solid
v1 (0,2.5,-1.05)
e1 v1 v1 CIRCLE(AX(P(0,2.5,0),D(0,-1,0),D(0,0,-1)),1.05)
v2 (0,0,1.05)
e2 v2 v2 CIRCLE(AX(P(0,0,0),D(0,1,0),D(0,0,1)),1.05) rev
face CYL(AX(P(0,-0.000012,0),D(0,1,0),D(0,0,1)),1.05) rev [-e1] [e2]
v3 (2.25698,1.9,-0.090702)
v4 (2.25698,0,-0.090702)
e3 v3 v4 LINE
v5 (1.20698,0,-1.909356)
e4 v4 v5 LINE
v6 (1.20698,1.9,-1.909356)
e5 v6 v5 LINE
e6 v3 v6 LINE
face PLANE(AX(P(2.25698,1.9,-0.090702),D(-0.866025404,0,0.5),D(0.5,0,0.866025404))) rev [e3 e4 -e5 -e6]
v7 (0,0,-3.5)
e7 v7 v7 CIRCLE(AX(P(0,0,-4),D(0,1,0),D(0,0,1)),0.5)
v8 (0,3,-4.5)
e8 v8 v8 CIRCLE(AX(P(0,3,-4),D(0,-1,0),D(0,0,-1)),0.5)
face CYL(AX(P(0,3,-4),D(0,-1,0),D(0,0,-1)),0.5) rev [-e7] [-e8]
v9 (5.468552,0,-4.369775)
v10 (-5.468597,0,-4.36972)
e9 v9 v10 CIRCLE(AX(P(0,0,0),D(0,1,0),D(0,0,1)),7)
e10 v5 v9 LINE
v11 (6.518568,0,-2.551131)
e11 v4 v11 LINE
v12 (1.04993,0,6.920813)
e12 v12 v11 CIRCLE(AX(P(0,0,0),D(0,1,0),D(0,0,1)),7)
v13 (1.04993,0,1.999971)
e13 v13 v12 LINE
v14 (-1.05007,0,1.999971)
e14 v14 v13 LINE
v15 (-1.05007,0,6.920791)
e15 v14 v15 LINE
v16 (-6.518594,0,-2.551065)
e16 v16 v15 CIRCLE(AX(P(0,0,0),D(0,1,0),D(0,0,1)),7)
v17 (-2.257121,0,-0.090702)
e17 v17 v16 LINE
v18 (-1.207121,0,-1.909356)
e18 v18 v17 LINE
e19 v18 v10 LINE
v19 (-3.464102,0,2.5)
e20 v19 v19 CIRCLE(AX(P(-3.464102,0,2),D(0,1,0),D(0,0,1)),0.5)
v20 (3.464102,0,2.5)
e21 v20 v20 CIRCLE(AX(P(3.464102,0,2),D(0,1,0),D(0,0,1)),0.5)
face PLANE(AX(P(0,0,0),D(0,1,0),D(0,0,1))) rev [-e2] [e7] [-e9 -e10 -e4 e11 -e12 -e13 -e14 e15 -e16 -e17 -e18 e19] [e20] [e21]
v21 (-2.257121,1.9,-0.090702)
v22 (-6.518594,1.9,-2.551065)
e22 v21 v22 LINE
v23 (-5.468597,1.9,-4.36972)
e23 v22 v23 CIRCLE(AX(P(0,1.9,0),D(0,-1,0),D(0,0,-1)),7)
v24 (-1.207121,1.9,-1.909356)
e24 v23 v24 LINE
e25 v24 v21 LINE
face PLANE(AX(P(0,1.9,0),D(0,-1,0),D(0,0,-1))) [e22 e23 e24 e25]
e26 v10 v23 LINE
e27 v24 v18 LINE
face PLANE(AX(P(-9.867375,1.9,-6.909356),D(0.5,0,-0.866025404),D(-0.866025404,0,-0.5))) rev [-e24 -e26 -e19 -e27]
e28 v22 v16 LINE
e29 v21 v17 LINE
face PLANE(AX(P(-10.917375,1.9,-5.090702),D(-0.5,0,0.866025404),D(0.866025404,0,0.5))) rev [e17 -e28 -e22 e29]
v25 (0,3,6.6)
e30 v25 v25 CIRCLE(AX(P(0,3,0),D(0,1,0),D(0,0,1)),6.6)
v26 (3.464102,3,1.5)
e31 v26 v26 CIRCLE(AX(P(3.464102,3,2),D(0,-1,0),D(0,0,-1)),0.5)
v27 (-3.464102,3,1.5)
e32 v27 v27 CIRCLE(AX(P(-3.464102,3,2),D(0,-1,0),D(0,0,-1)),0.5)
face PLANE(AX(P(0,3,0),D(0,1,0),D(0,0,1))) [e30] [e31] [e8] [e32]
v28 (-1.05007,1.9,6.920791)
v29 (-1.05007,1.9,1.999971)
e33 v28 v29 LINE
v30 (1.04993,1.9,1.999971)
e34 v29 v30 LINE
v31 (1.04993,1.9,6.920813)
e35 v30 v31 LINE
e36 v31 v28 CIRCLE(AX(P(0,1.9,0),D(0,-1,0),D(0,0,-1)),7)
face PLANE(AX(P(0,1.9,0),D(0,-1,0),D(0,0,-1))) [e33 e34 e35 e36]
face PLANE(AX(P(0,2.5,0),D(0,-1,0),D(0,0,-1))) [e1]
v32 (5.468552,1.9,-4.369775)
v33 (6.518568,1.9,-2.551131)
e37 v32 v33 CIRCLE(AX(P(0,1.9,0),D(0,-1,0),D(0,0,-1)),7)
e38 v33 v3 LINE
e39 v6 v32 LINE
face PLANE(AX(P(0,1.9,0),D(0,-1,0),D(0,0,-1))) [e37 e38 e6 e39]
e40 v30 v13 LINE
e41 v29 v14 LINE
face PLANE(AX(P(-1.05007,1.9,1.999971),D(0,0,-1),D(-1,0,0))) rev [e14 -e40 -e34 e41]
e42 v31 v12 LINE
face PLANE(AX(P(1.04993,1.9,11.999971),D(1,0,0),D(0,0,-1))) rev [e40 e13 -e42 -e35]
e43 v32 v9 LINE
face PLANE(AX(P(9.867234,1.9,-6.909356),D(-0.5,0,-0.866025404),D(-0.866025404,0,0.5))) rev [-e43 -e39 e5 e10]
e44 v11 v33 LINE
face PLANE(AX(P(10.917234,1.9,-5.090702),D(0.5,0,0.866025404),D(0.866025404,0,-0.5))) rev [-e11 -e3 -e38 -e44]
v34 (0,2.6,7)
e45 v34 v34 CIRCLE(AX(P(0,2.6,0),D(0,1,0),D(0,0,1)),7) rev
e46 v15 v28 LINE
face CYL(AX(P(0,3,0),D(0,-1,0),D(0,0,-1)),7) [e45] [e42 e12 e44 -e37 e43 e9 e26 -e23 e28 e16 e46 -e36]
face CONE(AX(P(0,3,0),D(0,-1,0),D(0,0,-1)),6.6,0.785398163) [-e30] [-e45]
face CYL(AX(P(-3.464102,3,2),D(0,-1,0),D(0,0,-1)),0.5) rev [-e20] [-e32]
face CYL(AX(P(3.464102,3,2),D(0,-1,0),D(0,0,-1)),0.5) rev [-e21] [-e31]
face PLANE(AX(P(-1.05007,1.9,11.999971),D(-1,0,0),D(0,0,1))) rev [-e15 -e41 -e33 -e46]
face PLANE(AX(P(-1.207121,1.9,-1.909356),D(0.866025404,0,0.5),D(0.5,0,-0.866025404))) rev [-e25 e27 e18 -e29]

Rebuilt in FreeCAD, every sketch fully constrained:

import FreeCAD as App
import Part
import Sketcher

V = App.Vector
Q = App.Units.Quantity


def edges_at(feature, points):
    """Names of the edges that pass closest to the given points."""
    edges = feature.Shape.Edges
    near = lambda p: min(range(len(edges)), key=lambda i: edges[i].distToShape(Part.Vertex(*p))[0])
    return sorted({f"Edge{near(p) + 1}" for p in points})

doc = App.newDocument("Part")
body = doc.addObject("PartDesign::Body", "Body")

sketch1 = body.newObject("Sketcher::SketchObject", "Sketch")
sketch1.AttachmentSupport = (doc.getObject("XZ_Plane"), [""])
sketch1.MapMode = "FlatFace"
sketch1.addGeometry(Part.Circle(V(0, 0, 0), V(0, 0, 1), 7), False)
sketch1.addConstraint(Sketcher.Constraint("Coincident", 0, 3, -1, 1))
sketch1.addConstraint(Sketcher.Constraint("Diameter", 0, 14.0))
pad1 = body.newObject("PartDesign::Pad", "Pad")
pad1.Profile = sketch1
pad1.Length = 3
pad1.Reversed = True

sketch2 = body.newObject("Sketcher::SketchObject", "Sketch001")
sketch2.AttachmentSupport = (doc.getObject("XZ_Plane"), [""])
sketch2.MapMode = "FlatFace"
sketch2.addGeometry(Part.LineSegment(V(9.9, -6.9, 0), V(10.9, -5.1, 0)), False)
sketch2.addGeometry(Part.LineSegment(V(10.9, -5.1, 0), V(2.3, -0.1, 0)), False)
sketch2.addGeometry(Part.LineSegment(V(2.3, -0.1, 0), V(1.2, -1.9, 0)), False)
sketch2.addGeometry(Part.LineSegment(V(1.2, -1.9, 0), V(9.9, -6.9, 0)), False)
sketch2.addGeometry(Part.LineSegment(V(-1.1, 12, 0), V(-1.1, 2, 0)), False)
sketch2.addGeometry(Part.LineSegment(V(-1.1, 2, 0), V(1, 2, 0)), False)
sketch2.addGeometry(Part.LineSegment(V(1, 2, 0), V(1, 12, 0)), False)
sketch2.addGeometry(Part.LineSegment(V(1, 12, 0), V(-1.1, 12, 0)), False)
sketch2.addGeometry(Part.LineSegment(V(-10.9, -5.1, 0), V(-9.9, -6.9, 0)), False)
sketch2.addGeometry(Part.LineSegment(V(-9.9, -6.9, 0), V(-1.2, -1.9, 0)), False)
sketch2.addGeometry(Part.LineSegment(V(-1.2, -1.9, 0), V(-2.3, -0.1, 0)), False)
sketch2.addGeometry(Part.LineSegment(V(-2.3, -0.1, 0), V(-10.9, -5.1, 0)), False)
sketch2.addConstraint(Sketcher.Constraint("Coincident", 0, 2, 1, 1))
sketch2.addConstraint(Sketcher.Constraint("Coincident", 1, 2, 2, 1))
sketch2.addConstraint(Sketcher.Constraint("Coincident", 2, 2, 3, 1))
sketch2.addConstraint(Sketcher.Constraint("Coincident", 3, 2, 0, 1))
sketch2.addConstraint(Sketcher.Constraint("Coincident", 4, 2, 5, 1))
sketch2.addConstraint(Sketcher.Constraint("Coincident", 5, 2, 6, 1))
sketch2.addConstraint(Sketcher.Constraint("Coincident", 6, 2, 7, 1))
sketch2.addConstraint(Sketcher.Constraint("Coincident", 7, 2, 4, 1))
sketch2.addConstraint(Sketcher.Constraint("Coincident", 8, 2, 9, 1))
sketch2.addConstraint(Sketcher.Constraint("Coincident", 9, 2, 10, 1))
sketch2.addConstraint(Sketcher.Constraint("Coincident", 10, 2, 11, 1))
sketch2.addConstraint(Sketcher.Constraint("Coincident", 11, 2, 8, 1))
sketch2.addConstraint(Sketcher.Constraint("Vertical", 4))
sketch2.addConstraint(Sketcher.Constraint("Horizontal", 5))
sketch2.addConstraint(Sketcher.Constraint("Vertical", 6))
sketch2.addConstraint(Sketcher.Constraint("Horizontal", 7))
sketch2.addConstraint(Sketcher.Constraint("Perpendicular", 0, 1))
sketch2.addConstraint(Sketcher.Constraint("Perpendicular", 1, 2))
sketch2.addConstraint(Sketcher.Constraint("Perpendicular", 2, 3))
sketch2.addConstraint(Sketcher.Constraint("Perpendicular", 8, 9))
sketch2.addConstraint(Sketcher.Constraint("Perpendicular", 9, 10))
sketch2.addConstraint(Sketcher.Constraint("Perpendicular", 10, 11))
sketch2.addConstraint(Sketcher.Constraint("Horizontal", 3, 2, 8, 2))
sketch2.addConstraint(Sketcher.Constraint("Horizontal", 2, 2, 9, 2))
sketch2.addConstraint(Sketcher.Constraint("Horizontal", 1, 2, 10, 2))
sketch2.addConstraint(Sketcher.Constraint("Equal", 2, 8))
sketch2.addConstraint(Sketcher.Constraint("DistanceY", 4, 2, 4, 1, 10.0))
sketch2.addConstraint(Sketcher.Constraint("Angle", 0, Q("60 deg")))
sketch2.addConstraint(Sketcher.Constraint("Distance", 1, 10.0))
sketch2.addConstraint(Sketcher.Constraint("DistanceX", 5, 1, 5, 2, 2.1))
sketch2.addConstraint(Sketcher.Constraint("Distance", 0, 2.1))
sketch2.addConstraint(Sketcher.Constraint("DistanceX", 9, 2, 2, 2, 2.414102))
sketch2.addConstraint(Sketcher.Constraint("DistanceX", -1, 1, 1, 2, 2.25698))
sketch2.addConstraint(Sketcher.Constraint("DistanceX", 4, 2, -1, 1, 1.05007))
sketch2.addConstraint(Sketcher.Constraint("DistanceY", -1, 1, 4, 2, 1.999971))
sketch2.addConstraint(Sketcher.Constraint("DistanceY", 0, 2, -1, 1, 5.090702))
pocket1 = body.newObject("PartDesign::Pocket", "Pocket")
pocket1.Profile = sketch2
pocket1.Length = 1.9

sketch3 = body.newObject("Sketcher::SketchObject", "Sketch002")
sketch3.AttachmentSupport = (doc.getObject("XZ_Plane"), [""])
sketch3.MapMode = "FlatFace"
sketch3.addGeometry(Part.Circle(V(0, 0, 0), V(0, 0, 1), 1.1), False)
sketch3.addConstraint(Sketcher.Constraint("Coincident", 0, 3, -1, 1))
sketch3.addConstraint(Sketcher.Constraint("Diameter", 0, 2.1))
pocket2 = body.newObject("PartDesign::Pocket", "Pocket001")
pocket2.Profile = sketch3
pocket2.Type = "TwoLengths"
pocket2.Length = 1
pocket2.Length2 = 2.5
pocket2.Reversed = True

sketch4 = body.newObject("Sketcher::SketchObject", "Sketch003")
sketch4.AttachmentSupport = (doc.getObject("XZ_Plane"), [""])
sketch4.MapMode = "FlatFace"
sketch4.addGeometry(Part.Circle(V(0, -4, 0), V(0, 0, 1), 0.5), False)
sketch4.addGeometry(Part.Circle(V(-3.5, 2, 0), V(0, 0, 1), 0.5), False)
sketch4.addGeometry(Part.Circle(V(3.5, 2, 0), V(0, 0, 1), 0.5), False)
sketch4.addConstraint(Sketcher.Constraint("Equal", 0, 1))
sketch4.addConstraint(Sketcher.Constraint("Equal", 1, 2))
sketch4.addConstraint(Sketcher.Constraint("Symmetric", 1, 3, 2, 3, -2))
sketch4.addConstraint(Sketcher.Constraint("PointOnObject", 0, 3, -2))
sketch4.addConstraint(Sketcher.Constraint("Diameter", 0, 1.0))
sketch4.addConstraint(Sketcher.Constraint("DistanceY", 0, 3, -1, 1, 4.0))
sketch4.addConstraint(Sketcher.Constraint("DistanceY", -1, 1, 1, 3, 2.0))
sketch4.addConstraint(Sketcher.Constraint("DistanceX", 1, 3, -1, 1, 3.464102))
pocket3 = body.newObject("PartDesign::Pocket", "Pocket002")
pocket3.Profile = sketch4
pocket3.Type = "ThroughAll"
pocket3.Midplane = True
doc.recompute()

chamfer = body.newObject("PartDesign::Chamfer", "Chamfer")
chamfer.Base = (pocket3, edges_at(pocket3, [(-7, 3, 0)]))
chamfer.Size = 0.4

doc.recompute()
